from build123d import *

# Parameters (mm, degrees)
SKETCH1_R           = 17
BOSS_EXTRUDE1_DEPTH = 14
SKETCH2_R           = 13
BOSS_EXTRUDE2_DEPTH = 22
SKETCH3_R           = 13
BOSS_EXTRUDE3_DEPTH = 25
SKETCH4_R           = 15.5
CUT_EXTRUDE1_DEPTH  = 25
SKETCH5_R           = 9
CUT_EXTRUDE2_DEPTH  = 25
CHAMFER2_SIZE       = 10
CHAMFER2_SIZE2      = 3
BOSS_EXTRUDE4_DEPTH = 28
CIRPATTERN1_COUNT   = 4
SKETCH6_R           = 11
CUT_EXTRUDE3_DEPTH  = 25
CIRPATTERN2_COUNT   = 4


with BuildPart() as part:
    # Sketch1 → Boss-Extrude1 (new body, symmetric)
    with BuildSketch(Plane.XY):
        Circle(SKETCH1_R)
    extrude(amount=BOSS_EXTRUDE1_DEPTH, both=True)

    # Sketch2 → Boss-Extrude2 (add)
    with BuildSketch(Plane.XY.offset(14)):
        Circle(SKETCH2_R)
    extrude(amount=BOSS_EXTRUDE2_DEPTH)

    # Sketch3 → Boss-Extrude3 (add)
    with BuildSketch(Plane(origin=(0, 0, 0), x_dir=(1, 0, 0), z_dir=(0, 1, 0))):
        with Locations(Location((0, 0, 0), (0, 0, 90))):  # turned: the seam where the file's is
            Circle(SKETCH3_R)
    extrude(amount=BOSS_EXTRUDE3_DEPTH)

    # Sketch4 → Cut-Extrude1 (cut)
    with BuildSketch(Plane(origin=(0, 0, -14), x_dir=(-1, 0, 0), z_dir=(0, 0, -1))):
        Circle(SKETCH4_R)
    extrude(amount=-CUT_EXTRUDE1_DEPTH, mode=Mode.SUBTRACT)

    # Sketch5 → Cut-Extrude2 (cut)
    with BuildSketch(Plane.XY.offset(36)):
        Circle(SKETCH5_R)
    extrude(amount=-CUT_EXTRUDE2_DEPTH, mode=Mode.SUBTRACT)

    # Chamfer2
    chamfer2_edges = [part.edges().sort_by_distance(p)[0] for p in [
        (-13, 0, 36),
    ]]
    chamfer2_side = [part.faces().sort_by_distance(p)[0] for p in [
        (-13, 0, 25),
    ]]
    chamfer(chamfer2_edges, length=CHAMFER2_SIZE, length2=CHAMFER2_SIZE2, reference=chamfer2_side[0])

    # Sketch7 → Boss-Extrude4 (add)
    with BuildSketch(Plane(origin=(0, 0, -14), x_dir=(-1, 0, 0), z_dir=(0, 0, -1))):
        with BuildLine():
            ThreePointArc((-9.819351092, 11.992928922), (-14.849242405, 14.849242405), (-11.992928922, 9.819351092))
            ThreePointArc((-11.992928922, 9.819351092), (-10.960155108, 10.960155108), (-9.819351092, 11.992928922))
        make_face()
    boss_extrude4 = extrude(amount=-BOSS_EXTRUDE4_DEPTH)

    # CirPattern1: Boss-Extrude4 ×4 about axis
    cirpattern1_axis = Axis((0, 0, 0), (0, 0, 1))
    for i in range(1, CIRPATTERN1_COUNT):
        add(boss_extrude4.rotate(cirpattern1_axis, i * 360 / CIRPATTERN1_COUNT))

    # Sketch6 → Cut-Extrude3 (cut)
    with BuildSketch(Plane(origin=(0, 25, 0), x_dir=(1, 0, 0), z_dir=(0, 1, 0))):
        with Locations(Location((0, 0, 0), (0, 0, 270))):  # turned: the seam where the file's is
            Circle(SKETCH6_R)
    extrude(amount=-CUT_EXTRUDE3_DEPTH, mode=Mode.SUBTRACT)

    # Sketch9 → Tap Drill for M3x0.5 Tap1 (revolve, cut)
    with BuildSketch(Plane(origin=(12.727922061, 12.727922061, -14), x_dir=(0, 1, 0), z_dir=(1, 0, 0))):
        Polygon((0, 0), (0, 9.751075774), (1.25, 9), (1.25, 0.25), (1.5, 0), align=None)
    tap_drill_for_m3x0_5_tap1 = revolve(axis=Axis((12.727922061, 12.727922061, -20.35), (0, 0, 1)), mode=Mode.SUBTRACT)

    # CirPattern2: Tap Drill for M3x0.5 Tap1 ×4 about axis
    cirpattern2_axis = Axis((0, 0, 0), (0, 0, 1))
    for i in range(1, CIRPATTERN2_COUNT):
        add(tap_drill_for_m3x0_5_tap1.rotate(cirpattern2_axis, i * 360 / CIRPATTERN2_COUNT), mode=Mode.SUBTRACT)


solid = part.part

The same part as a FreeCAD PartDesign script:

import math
import FreeCAD as App
import Part
import Sketcher
from FreeCAD import Vector
Q = App.Units.Quantity


def edges_at(feature, points):
    """Names of the edges that pass closest to the given points."""
    edges = feature.Shape.Edges
    near = lambda p: min(range(len(edges)), key=lambda i: edges[i].distToShape(Part.Vertex(*p))[0])
    return sorted({f"Edge{near(p) + 1}" for p in points})

doc = App.newDocument("Part")
params = doc.addObject("Spreadsheet::Sheet", "Params")
for row, (alias, value) in enumerate([
    ("sketch1_diameter", "34 mm"),
    ("pad1_length", "28 mm"),
    ("sketch2_diameter", "26 mm"),
    ("pad2_length", "22 mm"),
    ("sketch3_diameter", "26 mm"),
    ("pad3_length", "25 mm"),
    ("sketch4_diameter", "31 mm"),
    ("pocket1_length", "25 mm"),
    ("sketch5_diameter", "18 mm"),
    ("pocket2_length", "25 mm"),
    ("chamfer_size", "10 mm"),
    ("chamfer_size2", "3 mm"),
    ("sketch6_radius", "3 mm"),
    ("sketch6_radius2", "15.5 mm"),
    ("pad4_length", "28 mm"),
    ("sketch7_diameter", "22 mm"),
    ("pocket3_length", "25 mm"),
    ("sketch8_width", "1.5 mm"),
    ("sketch8_height", "8.75 mm"),
    ("groove_angle", "360 deg"),
], start=1):
    params.set(f"A{row}", alias)
    params.set(f"B{row}", "=" + value)
    params.setAlias(f"B{row}", alias)

body = doc.addObject("PartDesign::Body", "Body")

# Sketch on XY plane
sketch1 = doc.addObject("Sketcher::SketchObject", "Sketch")
body.addObject(sketch1)
sketch1.AttachmentSupport = (doc.XY_Plane, [""])
sketch1.MapMode = "FlatFace"
sketch1.addGeometry(Part.Circle(Vector(0, 0, 0), Vector(0, 0, 1), 17), False)
sketch1.addConstraint([
    Sketcher.Constraint("Coincident", 0, 3, -1, 1),
    Sketcher.Constraint("Diameter", 0, Q("34 mm")),
])
sketch1.setExpression("Constraints[1]", "Params.sketch1_diameter")
pad1 = doc.addObject("PartDesign::Pad", "Pad")
body.addObject(pad1)
pad1.Profile = sketch1
pad1.setExpression("Length", "Params.pad1_length")
pad1.Midplane = True

# Sketch on XY plane
sketch2 = doc.addObject("Sketcher::SketchObject", "Sketch001")
body.addObject(sketch2)
sketch2.AttachmentSupport = (doc.XY_Plane, [""])
sketch2.MapMode = "FlatFace"
sketch2.AttachmentOffset = App.Placement(Vector(0, 0, 14), App.Rotation())
sketch2.addGeometry(Part.Circle(Vector(0, 0, 0), Vector(0, 0, 1), 13), False)
sketch2.addConstraint([
    Sketcher.Constraint("Coincident", 0, 3, -1, 1),
    Sketcher.Constraint("Diameter", 0, Q("26 mm")),
])
sketch2.setExpression("Constraints[1]", "Params.sketch2_diameter")
pad2 = doc.addObject("PartDesign::Pad", "Pad001")
body.addObject(pad2)
pad2.Profile = sketch2
pad2.setExpression("Length", "Params.pad2_length")

# Sketch on XZ plane
sketch3 = doc.addObject("Sketcher::SketchObject", "Sketch002")
body.addObject(sketch3)
sketch3.AttachmentSupport = (doc.XZ_Plane, [""])
sketch3.MapMode = "FlatFace"
sketch3.addGeometry(Part.Circle(Vector(0, 0, 0), Vector(0, 0, 1), 13), False)
sketch3.addConstraint([
    Sketcher.Constraint("Coincident", 0, 3, -1, 1),
    Sketcher.Constraint("Diameter", 0, Q("26 mm")),
])
sketch3.setExpression("Constraints[1]", "Params.sketch3_diameter")
pad3 = doc.addObject("PartDesign::Pad", "Pad002")
body.addObject(pad3)
pad3.Profile = sketch3
pad3.setExpression("Length", "Params.pad3_length")
pad3.Reversed = True

# Sketch on XY plane
sketch4 = doc.addObject("Sketcher::SketchObject", "Sketch003")
body.addObject(sketch4)
sketch4.AttachmentSupport = (doc.XY_Plane, [""])
sketch4.MapMode = "FlatFace"
sketch4.AttachmentOffset = App.Placement(Vector(0, 0, -14), App.Rotation())
sketch4.addGeometry(Part.Circle(Vector(0, 0, 0), Vector(0, 0, 1), 16), False)
sketch4.addConstraint([
    Sketcher.Constraint("Coincident", 0, 3, -1, 1),
    Sketcher.Constraint("Diameter", 0, Q("31 mm")),
])
sketch4.setExpression("Constraints[1]", "Params.sketch4_diameter")
pocket1 = doc.addObject("PartDesign::Pocket", "Pocket")
body.addObject(pocket1)
pocket1.Profile = sketch4
pocket1.setExpression("Length", "Params.pocket1_length")
pocket1.Reversed = True

# Sketch on XY plane
sketch5 = doc.addObject("Sketcher::SketchObject", "Sketch004")
body.addObject(sketch5)
sketch5.AttachmentSupport = (doc.XY_Plane, [""])
sketch5.MapMode = "FlatFace"
sketch5.AttachmentOffset = App.Placement(Vector(0, 0, 36), App.Rotation())
sketch5.addGeometry(Part.Circle(Vector(0, 0, 0), Vector(0, 0, 1), 9), False)
sketch5.addConstraint([
    Sketcher.Constraint("Coincident", 0, 3, -1, 1),
    Sketcher.Constraint("Diameter", 0, Q("18 mm")),
])
sketch5.setExpression("Constraints[1]", "Params.sketch5_diameter")
pocket2 = doc.addObject("PartDesign::Pocket", "Pocket001")
body.addObject(pocket2)
pocket2.Profile = sketch5
pocket2.setExpression("Length", "Params.pocket2_length")
doc.recompute()

chamfer = doc.addObject("PartDesign::Chamfer", "Chamfer")
body.addObject(chamfer)
chamfer.Base = (pocket2, edges_at(pocket2, [(-13, 0, 36)]))
chamfer.ChamferType = "Two distances"
chamfer.setExpression("Size", "Params.chamfer_size")
chamfer.setExpression("Size2", "Params.chamfer_size2")

# Sketch on XY plane
sketch6 = doc.addObject("Sketcher::SketchObject", "Sketch005")
body.addObject(sketch6)
sketch6.AttachmentSupport = (doc.XY_Plane, [""])
sketch6.MapMode = "FlatFace"
sketch6.AttachmentOffset = App.Placement(Vector(0, 0, -14), App.Rotation())
sketch6.addGeometry([
    Part.ArcOfCircle(Part.Circle(Vector(12.7, 12.7, 0), Vector(0, 0, 1), 3), math.radians(-104), math.radians(194)),
    Part.ArcOfCircle(Part.Circle(Vector(0, 0, 0), Vector(0, 0, 1), 15.5), math.radians(39.31), math.radians(50.69)),
], False)
sketch6.addConstraint([
    Sketcher.Constraint("Coincident", 0, 1, 1, 1),
    Sketcher.Constraint("Coincident", 1, 2, 0, 2),
    Sketcher.Constraint("Coincident", 1, 3, -1, 1),
    Sketcher.Constraint("Radius", 0, Q("3 mm")),
    Sketcher.Constraint("Radius", 1, Q("15.5 mm")),
    Sketcher.Constraint("DistanceX", -1, 1, 0, 1, Q("11.992929 mm")),
    Sketcher.Constraint("DistanceX", -1, 1, 1, 2, Q("9.819351 mm")),
])
sketch6.setExpression("Constraints[3]", "Params.sketch6_radius")
sketch6.setExpression("Constraints[4]", "Params.sketch6_radius2")
pad4 = doc.addObject("PartDesign::Pad", "Pad003")
body.addObject(pad4)
pad4.Profile = sketch6
pad4.setExpression("Length", "Params.pad4_length")
doc.recompute()

polarpattern = doc.addObject("PartDesign::PolarPattern", "PolarPattern")
body.addObject(polarpattern)
polarpattern.Originals = [pad4]
polarpattern.Axis = (doc.Z_Axis, [""])
polarpattern.Angle = 360
polarpattern.Occurrences = 4
body.Tip = polarpattern

# Sketch on XZ plane
sketch7 = doc.addObject("Sketcher::SketchObject", "Sketch006")
body.addObject(sketch7)
sketch7.AttachmentSupport = (doc.XZ_Plane, [""])
sketch7.MapMode = "FlatFace"
sketch7.AttachmentOffset = App.Placement(Vector(0, 0, -25), App.Rotation())
sketch7.addGeometry(Part.Circle(Vector(0, 0, 0), Vector(0, 0, 1), 11), False)
sketch7.addConstraint([
    Sketcher.Constraint("Coincident", 0, 3, -1, 1),
    Sketcher.Constraint("Diameter", 0, Q("22 mm")),
])
sketch7.setExpression("Constraints[1]", "Params.sketch7_diameter")
pocket3 = doc.addObject("PartDesign::Pocket", "Pocket002")
body.addObject(pocket3)
pocket3.Profile = sketch7
pocket3.setExpression("Length", "Params.pocket3_length")
pocket3.Reversed = True

# Sketch on YZ plane
sketch8 = doc.addObject("Sketcher::SketchObject", "Sketch007")
body.addObject(sketch8)
sketch8.AttachmentSupport = (doc.YZ_Plane, [""])
sketch8.MapMode = "FlatFace"
sketch8.AttachmentOffset = App.Placement(Vector(0, 0, 12.727922), App.Rotation())
sketch8.addGeometry([
    Part.LineSegment(Vector(12.73, -4.25, 0), Vector(12.73, -14, 0)),  # 0
    Part.LineSegment(Vector(12.73, -14, 0), Vector(14.23, -14, 0)),  # 1
    Part.LineSegment(Vector(14.23, -14, 0), Vector(13.98, -13.75, 0)),  # 2
    Part.LineSegment(Vector(13.98, -13.75, 0), Vector(13.98, -5, 0)),  # 3
    Part.LineSegment(Vector(13.98, -5, 0), Vector(12.73, -4.25, 0)),  # 4
], False)
sketch8.addGeometry(Part.LineSegment(Vector(12.73, -14, 0), Vector(12.73, -4.25, 0)), True)  # axis
sketch8.addConstraint([
    Sketcher.Constraint("Coincident", 0, 2, 1, 1),
    Sketcher.Constraint("Coincident", 1, 2, 2, 1),
    Sketcher.Constraint("Coincident", 2, 2, 3, 1),
    Sketcher.Constraint("Coincident", 3, 2, 4, 1),
    Sketcher.Constraint("Coincident", 4, 2, 0, 1),
    Sketcher.Constraint("Vertical", 0),
    Sketcher.Constraint("Horizontal", 1),
    Sketcher.Constraint("Vertical", 3),
    Sketcher.Constraint("Vertical", 5),
    Sketcher.Constraint("Coincident", 5, 1, 0, 2),
    Sketcher.Constraint("Equal", 0, 5),
    Sketcher.Constraint("Angle", 2, Q("135 deg")),
    Sketcher.Constraint("Angle", 4, Q("149 deg")),
    Sketcher.Constraint("DistanceX", 1, 1, 1, 2, Q("1.5 mm")),
    Sketcher.Constraint("DistanceY", 0, 2, -1, 1, Q("14 mm")),
    Sketcher.Constraint("DistanceY", 3, 2, -1, 1, Q("5 mm")),
    Sketcher.Constraint("DistanceY", 3, 1, 3, 2, Q("8.75 mm")),
    Sketcher.Constraint("DistanceX", -1, 1, 0, 2, Q("12.727922 mm")),
])
sketch8.setExpression("Constraints[13]", "Params.sketch8_width")
sketch8.setExpression("Constraints[16]", "Params.sketch8_height")
groove = doc.addObject("PartDesign::Groove", "Groove")
body.addObject(groove)
groove.Profile = sketch8
groove.ReferenceAxis = (sketch8, ["Axis0"])
groove.setExpression("Angle", "Params.groove_angle")
doc.recompute()

polarpattern2 = doc.addObject("PartDesign::PolarPattern", "PolarPattern001")
body.addObject(polarpattern2)
polarpattern2.Originals = [groove]
polarpattern2.Axis = (doc.Z_Axis, [""])
polarpattern2.Angle = 360
polarpattern2.Occurrences = 4
body.Tip = polarpattern2

doc.recompute()
